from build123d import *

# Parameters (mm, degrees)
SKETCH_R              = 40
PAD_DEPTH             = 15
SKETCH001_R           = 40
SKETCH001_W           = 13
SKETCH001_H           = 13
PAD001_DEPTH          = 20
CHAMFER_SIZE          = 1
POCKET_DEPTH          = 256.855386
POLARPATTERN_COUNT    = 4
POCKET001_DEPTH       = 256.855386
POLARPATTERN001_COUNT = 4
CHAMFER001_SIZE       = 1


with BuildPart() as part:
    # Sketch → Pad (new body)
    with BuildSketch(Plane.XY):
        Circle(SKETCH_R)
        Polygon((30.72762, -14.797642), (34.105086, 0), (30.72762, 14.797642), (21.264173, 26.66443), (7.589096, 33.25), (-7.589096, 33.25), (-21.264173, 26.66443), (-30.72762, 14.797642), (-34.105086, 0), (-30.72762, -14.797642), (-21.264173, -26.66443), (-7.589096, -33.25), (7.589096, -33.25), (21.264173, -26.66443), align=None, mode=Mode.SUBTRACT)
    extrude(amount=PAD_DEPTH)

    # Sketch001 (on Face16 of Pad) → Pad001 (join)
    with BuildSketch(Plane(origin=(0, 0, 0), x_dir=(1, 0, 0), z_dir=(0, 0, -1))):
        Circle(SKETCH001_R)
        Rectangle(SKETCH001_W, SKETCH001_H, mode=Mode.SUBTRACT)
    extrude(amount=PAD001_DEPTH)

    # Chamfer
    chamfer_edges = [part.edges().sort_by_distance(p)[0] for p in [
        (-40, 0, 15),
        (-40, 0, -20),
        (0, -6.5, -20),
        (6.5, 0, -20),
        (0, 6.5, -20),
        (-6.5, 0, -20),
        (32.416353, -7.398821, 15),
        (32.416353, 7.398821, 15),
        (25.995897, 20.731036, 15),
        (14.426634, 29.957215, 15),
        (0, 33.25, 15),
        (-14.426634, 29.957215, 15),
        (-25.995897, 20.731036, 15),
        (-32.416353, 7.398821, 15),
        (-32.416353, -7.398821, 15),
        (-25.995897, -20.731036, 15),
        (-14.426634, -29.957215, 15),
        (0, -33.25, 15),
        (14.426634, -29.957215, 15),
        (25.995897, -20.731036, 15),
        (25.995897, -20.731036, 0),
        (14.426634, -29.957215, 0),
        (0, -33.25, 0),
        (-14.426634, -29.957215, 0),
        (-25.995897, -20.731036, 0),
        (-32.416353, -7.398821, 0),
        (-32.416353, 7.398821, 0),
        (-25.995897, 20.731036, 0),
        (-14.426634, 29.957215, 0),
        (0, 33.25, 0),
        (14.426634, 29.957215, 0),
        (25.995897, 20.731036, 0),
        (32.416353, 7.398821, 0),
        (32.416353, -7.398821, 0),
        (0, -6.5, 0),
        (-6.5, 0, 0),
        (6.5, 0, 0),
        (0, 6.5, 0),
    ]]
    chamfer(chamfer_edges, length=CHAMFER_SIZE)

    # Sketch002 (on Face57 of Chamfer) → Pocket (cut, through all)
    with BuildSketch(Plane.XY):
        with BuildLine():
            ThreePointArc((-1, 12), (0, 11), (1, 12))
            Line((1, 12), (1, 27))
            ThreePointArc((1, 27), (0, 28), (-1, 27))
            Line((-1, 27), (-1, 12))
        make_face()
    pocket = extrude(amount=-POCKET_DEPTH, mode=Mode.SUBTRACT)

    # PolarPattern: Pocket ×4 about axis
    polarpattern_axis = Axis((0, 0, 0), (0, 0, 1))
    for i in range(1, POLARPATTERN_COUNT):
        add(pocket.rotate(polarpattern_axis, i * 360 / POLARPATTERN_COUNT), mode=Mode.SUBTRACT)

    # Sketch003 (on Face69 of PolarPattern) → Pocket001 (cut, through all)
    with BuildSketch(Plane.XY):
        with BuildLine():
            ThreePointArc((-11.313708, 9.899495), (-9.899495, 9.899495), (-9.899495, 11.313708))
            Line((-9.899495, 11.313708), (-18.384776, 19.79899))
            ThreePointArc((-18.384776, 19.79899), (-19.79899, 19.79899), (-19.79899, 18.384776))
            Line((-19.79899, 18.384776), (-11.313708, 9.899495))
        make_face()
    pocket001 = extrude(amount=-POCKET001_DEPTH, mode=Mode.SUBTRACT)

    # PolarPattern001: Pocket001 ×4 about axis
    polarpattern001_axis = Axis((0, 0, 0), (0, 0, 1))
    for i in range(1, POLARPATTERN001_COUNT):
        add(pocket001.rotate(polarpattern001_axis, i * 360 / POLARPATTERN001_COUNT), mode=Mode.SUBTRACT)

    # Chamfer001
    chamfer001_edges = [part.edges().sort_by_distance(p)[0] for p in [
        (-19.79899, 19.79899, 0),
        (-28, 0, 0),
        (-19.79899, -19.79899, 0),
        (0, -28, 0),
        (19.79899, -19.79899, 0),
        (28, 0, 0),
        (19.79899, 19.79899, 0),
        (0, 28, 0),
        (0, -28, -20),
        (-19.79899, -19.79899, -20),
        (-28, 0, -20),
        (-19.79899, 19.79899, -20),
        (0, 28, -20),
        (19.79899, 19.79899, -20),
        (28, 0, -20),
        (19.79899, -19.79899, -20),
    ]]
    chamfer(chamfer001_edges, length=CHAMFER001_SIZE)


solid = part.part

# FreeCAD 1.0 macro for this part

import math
import FreeCAD as App
import Part
import Sketcher

V = App.Vector
Q = App.Units.Quantity


def edges_at(feature, points):
    """Names of the edges that pass closest to the given points."""
    edges = feature.Shape.Edges
    near = lambda p: min(range(len(edges)), key=lambda i: edges[i].distToShape(Part.Vertex(*p))[0])
    return sorted({f"Edge{near(p) + 1}" for p in points})


def add_polygon(sketch, points):
    """Adds a closed chain of lines whose ends are joined by coincident constraints."""
    first, n = sketch.GeometryCount, len(points)
    for a, b in zip(points, points[1:] + points[:1]):
        sketch.addGeometry(Part.LineSegment(App.Vector(*a, 0), App.Vector(*b, 0)), False)
    for i in range(n):
        sketch.addConstraint(Sketcher.Constraint("Coincident", first + i, 2, first + (i + 1) % n, 1))

doc = App.newDocument("Part")
body = doc.addObject("PartDesign::Body", "Body")

# Sketch on XY plane
sketch1 = body.newObject("Sketcher::SketchObject", "Sketch")
sketch1.AttachmentSupport = (doc.getObject("XY_Plane"), [""])
sketch1.MapMode = "FlatFace"
sketch1.addGeometry(Part.Circle(V(0, 0, 0), V(0, 0, 1), 40), False)  # 0
add_polygon(sketch1, [(34, 0), (31, -15), (21, -27), (8, -33), (-8, -33), (-21, -27), (-31, -15), (-34, 0), (-31, 15), (-21, 27), (-8, 33), (8, 33), (21, 27), (31, 15)])  # lines 1-14
sketch1.addConstraint([
    Sketcher.Constraint("Horizontal", 4),
    Sketcher.Constraint("Horizontal", 11),
    Sketcher.Constraint("Coincident", 0, 3, -1, 1),
    Sketcher.Constraint("Symmetric", 1, 2, 8, 2, -1, 1),
    Sketcher.Constraint("Symmetric", 2, 2, 9, 2, -1, 1),
    Sketcher.Constraint("Symmetric", 3, 2, 10, 2, -1, 1),
    Sketcher.Constraint("Symmetric", 5, 2, 12, 2, -1, 1),
    Sketcher.Constraint("Symmetric", 6, 2, 13, 2, -1, 1),
    Sketcher.Constraint("Symmetric", 7, 2, 14, 2, -1, 1),
    Sketcher.Constraint("Symmetric", 2, 2, 5, 2, -2),
    Sketcher.Constraint("Symmetric", 1, 2, 6, 2, -2),
    Sketcher.Constraint("PointOnObject", 7, 2, -1),
    Sketcher.Constraint("Parallel", 5, 12),
    Sketcher.Constraint("Vertical", 4, 2, 10, 2),
    Sketcher.Constraint("Equal", 1, 2),
    Sketcher.Constraint("Equal", 2, 3),
    Sketcher.Constraint("Diameter", 0, 80.0),
    Sketcher.Constraint("DistanceY", 3, 2, -1, 1, 33.25),
    Sketcher.Constraint("DistanceX", 4, 2, 4, 1, 15.178192),
    Sketcher.Constraint("Distance", 1, 15.178191),
    Sketcher.Constraint("DistanceX", -1, 1, 1, 2, 30.72762),
    Sketcher.Constraint("DistanceY", 2, 2, -1, 1, 26.66443),
])
pad1 = body.newObject("PartDesign::Pad", "Pad")
pad1.Profile = sketch1
pad1.Length = 15

# Sketch on XY plane
sketch2 = body.newObject("Sketcher::SketchObject", "Sketch001")
sketch2.AttachmentSupport = (doc.getObject("XY_Plane"), [""])
sketch2.MapMode = "FlatFace"
sketch2.addGeometry(Part.Circle(V(0, 0, 0), V(0, 0, 1), 40), False)  # 0
add_polygon(sketch2, [(6, 6), (-6, 6), (-6, -6), (6, -6)])  # lines 1-4
sketch2.addConstraint([
    Sketcher.Constraint("Horizontal", 1),
    Sketcher.Constraint("Vertical", 2),
    Sketcher.Constraint("Horizontal", 3),
    Sketcher.Constraint("Vertical", 4),
    Sketcher.Constraint("Coincident", 0, 3, -1, 1),
    Sketcher.Constraint("Symmetric", 1, 2, 3, 2, -1, 1),
    Sketcher.Constraint("Equal", 3, 2),
    Sketcher.Constraint("Diameter", 0, 80.0),
    Sketcher.Constraint("DistanceX", 1, 2, 1, 1, 13.0),
])
pad2 = body.newObject("PartDesign::Pad", "Pad001")
pad2.Profile = sketch2
pad2.Length = 20
pad2.Reversed = True
doc.recompute()

chamfer = body.newObject("PartDesign::Chamfer", "Chamfer")
chamfer.Base = (pad2, edges_at(pad2, [
    (-40, 0, 15),
    (-40, 0, -20),
    (0, -6.5, -20),
    (6.5, 0, -20),
    (0, 6.5, -20),
    (-6.5, 0, -20),
    (32.416, -7.399, 15),
    (32.416, 7.399, 15),
    (25.996, 20.731, 15),
    (14.427, 29.957, 15),
    (0, 33.25, 15),
    (-14.427, 29.957, 15),
    (-25.996, 20.731, 15),
    (-32.416, 7.399, 15),
    (-32.416, -7.399, 15),
    (-25.996, -20.731, 15),
    (-14.427, -29.957, 15),
    (0, -33.25, 15),
    (14.427, -29.957, 15),
    (25.996, -20.731, 15),
    (25.996, -20.731, 0),
    (14.427, -29.957, 0),
    (0, -33.25, 0),
    (-14.427, -29.957, 0),
    (-25.996, -20.731, 0),
    (-32.416, -7.399, 0),
    (-32.416, 7.399, 0),
    (-25.996, 20.731, 0),
    (-14.427, 29.957, 0),
    (0, 33.25, 0),
    (14.427, 29.957, 0),
    (25.996, 20.731, 0),
    (32.416, 7.399, 0),
    (32.416, -7.399, 0),
    (0, -6.5, 0),
    (-6.5, 0, 0),
    (6.5, 0, 0),
    (0, 6.5, 0),
]))
chamfer.Size = 1

# Sketch on XY plane
sketch3 = body.newObject("Sketcher::SketchObject", "Sketch002")
sketch3.AttachmentSupport = (doc.getObject("XY_Plane"), [""])
sketch3.MapMode = "FlatFace"
sketch3.addGeometry([
    Part.ArcOfCircle(Part.Circle(V(0, 12, 0), V(0, 0, 1), 1), math.radians(180), math.radians(360)),
    Part.LineSegment(V(1, 12, 0), V(1, 27, 0)),
    Part.ArcOfCircle(Part.Circle(V(0, 27, 0), V(0, 0, 1), 1), math.radians(0), math.radians(180)),
    Part.LineSegment(V(-1, 27, 0), V(-1, 12, 0)),
], False)
sketch3.addConstraint([
    Sketcher.Constraint("Tangent", 0, 2, 1, 1),
    Sketcher.Constraint("Tangent", 1, 2, 2, 1),
    Sketcher.Constraint("Tangent", 2, 2, 3, 1),
    Sketcher.Constraint("Tangent", 3, 2, 0, 1),
    Sketcher.Constraint("Vertical", 1),
    Sketcher.Constraint("Vertical", 3),
    Sketcher.Constraint("PointOnObject", 0, 3, -2),
    Sketcher.Constraint("Radius", 0, 1.0),
    Sketcher.Constraint("DistanceY", 1, 1, 1, 2, 15.0),
    Sketcher.Constraint("DistanceY", -1, 1, 0, 3, 12.0),
])
pocket1 = body.newObject("PartDesign::Pocket", "Pocket")
pocket1.Profile = sketch3
pocket1.Type = "ThroughAll"
doc.recompute()

polarpattern = body.newObject("PartDesign::PolarPattern", "PolarPattern")
polarpattern.Originals = [pocket1]
polarpattern.Axis = (doc.getObject("Z_Axis"), [""])
polarpattern.Angle = 360
polarpattern.Occurrences = 4
body.Tip = polarpattern

# Sketch on XY plane
sketch4 = body.newObject("Sketcher::SketchObject", "Sketch003")
sketch4.AttachmentSupport = (doc.getObject("XY_Plane"), [""])
sketch4.MapMode = "FlatFace"
sketch4.addGeometry([
    Part.ArcOfCircle(Part.Circle(V(-10.6, 10.6, 0), V(0, 0, 1), 1), math.radians(-135), math.radians(45)),
    Part.LineSegment(V(-9.9, 11.3, 0), V(-18.4, 19.8, 0)),
    Part.ArcOfCircle(Part.Circle(V(-19.1, 19.1, 0), V(0, 0, 1), 1), math.radians(45), math.radians(225)),
    Part.LineSegment(V(-19.8, 18.4, 0), V(-11.3, 9.9, 0)),
], False)
sketch4.addConstraint([
    Sketcher.Constraint("Tangent", 0, 2, 1, 1),
    Sketcher.Constraint("Tangent", 1, 2, 2, 1),
    Sketcher.Constraint("Tangent", 2, 2, 3, 1),
    Sketcher.Constraint("Tangent", 3, 2, 0, 1),
    Sketcher.Constraint("Equal", 0, 2),
    Sketcher.Constraint("Radius", 0, 1.0),
    Sketcher.Constraint("Angle", 1, Q("134.999997 deg")),
    Sketcher.Constraint("Distance", 1, 12.0),
    Sketcher.Constraint("DistanceX", 0, 3, -1, 1, 10.606602),
    Sketcher.Constraint("DistanceY", -1, 1, 0, 3, 10.606602),
])
pocket2 = body.newObject("PartDesign::Pocket", "Pocket001")
pocket2.Profile = sketch4
pocket2.Type = "ThroughAll"
doc.recompute()

polarpattern2 = body.newObject("PartDesign::PolarPattern", "PolarPattern001")
polarpattern2.Originals = [pocket2]
polarpattern2.Axis = (doc.getObject("Z_Axis"), [""])
polarpattern2.Angle = 360
polarpattern2.Occurrences = 4
body.Tip = polarpattern2
doc.recompute()

chamfer2 = body.newObject("PartDesign::Chamfer", "Chamfer001")
chamfer2.Base = (polarpattern2, edges_at(polarpattern2, [
    (-19.799, 19.799, 0),
    (-28, 0, 0),
    (-19.799, -19.799, 0),
    (0, -28, 0),
    (19.799, -19.799, 0),
    (28, 0, 0),
    (19.799, 19.799, 0),
    (0, 28, 0),
    (0, -28, -20),
    (-19.799, -19.799, -20),
    (-28, 0, -20),
    (-19.799, 19.799, -20),
    (0, 28, -20),
    (19.799, 19.799, -20),
    (28, 0, -20),
    (19.799, -19.799, -20),
]))
chamfer2.Size = 1

doc.recompute()
